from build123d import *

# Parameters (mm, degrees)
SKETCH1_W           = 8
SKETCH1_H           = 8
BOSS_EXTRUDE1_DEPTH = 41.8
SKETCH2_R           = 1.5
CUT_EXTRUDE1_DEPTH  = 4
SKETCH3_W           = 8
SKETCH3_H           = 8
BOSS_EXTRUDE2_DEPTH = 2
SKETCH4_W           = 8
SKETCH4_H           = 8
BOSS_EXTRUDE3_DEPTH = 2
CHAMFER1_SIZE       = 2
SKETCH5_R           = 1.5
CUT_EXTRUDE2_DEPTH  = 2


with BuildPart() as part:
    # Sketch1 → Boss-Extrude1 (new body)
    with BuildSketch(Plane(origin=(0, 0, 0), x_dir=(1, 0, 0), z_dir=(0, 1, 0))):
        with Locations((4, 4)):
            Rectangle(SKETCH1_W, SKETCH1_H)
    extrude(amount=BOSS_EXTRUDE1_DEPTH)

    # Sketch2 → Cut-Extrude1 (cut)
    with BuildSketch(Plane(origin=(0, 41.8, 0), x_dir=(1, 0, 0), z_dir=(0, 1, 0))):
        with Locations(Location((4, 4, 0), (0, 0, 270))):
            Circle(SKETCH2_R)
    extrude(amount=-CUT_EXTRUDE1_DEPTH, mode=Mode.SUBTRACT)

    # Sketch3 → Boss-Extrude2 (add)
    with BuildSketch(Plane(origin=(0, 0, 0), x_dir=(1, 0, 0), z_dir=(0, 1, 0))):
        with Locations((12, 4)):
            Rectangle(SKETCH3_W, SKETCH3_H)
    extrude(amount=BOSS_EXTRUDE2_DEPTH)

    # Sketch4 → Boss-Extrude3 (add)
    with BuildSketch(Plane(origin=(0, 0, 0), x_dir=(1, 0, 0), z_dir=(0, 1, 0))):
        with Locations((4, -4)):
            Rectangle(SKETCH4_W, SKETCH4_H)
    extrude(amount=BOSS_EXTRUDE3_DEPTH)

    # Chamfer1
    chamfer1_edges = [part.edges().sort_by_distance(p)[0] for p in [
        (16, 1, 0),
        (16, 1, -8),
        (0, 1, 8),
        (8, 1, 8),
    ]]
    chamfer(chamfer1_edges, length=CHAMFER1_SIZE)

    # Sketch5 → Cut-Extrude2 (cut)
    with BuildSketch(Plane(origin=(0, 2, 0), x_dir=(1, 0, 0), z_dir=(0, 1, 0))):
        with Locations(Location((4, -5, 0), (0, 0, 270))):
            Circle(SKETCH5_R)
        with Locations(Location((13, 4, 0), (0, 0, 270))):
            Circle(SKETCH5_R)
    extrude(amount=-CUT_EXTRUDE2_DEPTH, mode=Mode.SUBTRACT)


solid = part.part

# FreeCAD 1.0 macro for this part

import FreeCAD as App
import Part
import Sketcher

V = App.Vector


def edges_at(feature, points):
    """Names of the edges that pass closest to the given points."""
    edges = feature.Shape.Edges
    near = lambda p: min(range(len(edges)), key=lambda i: edges[i].distToShape(Part.Vertex(*p))[0])
    return sorted({f"Edge{near(p) + 1}" for p in points})


def add_polygon(sketch, points):
    """Adds a closed chain of lines whose ends are joined by coincident constraints."""
    first, n = sketch.GeometryCount, len(points)
    for a, b in zip(points, points[1:] + points[:1]):
        sketch.addGeometry(Part.LineSegment(App.Vector(*a, 0), App.Vector(*b, 0)), False)
    for i in range(n):
        sketch.addConstraint(Sketcher.Constraint("Coincident", first + i, 2, first + (i + 1) % n, 1))

doc = App.newDocument("Part")
body = doc.addObject("PartDesign::Body", "Body")

# Sketch on XZ plane
sketch1 = body.newObject("Sketcher::SketchObject", "Sketch")
sketch1.AttachmentSupport = (doc.getObject("XZ_Plane"), [""])
sketch1.MapMode = "FlatFace"
add_polygon(sketch1, [(0, -8), (0, 0), (8, 0), (8, -8)])  # lines 0-3
sketch1.addConstraint([
    Sketcher.Constraint("Vertical", 0),
    Sketcher.Constraint("Horizontal", 1),
    Sketcher.Constraint("Vertical", 2),
    Sketcher.Constraint("Horizontal", 3),
    Sketcher.Constraint("Coincident", 0, 2, -1, 1),
    Sketcher.Constraint("Equal", 3, 0),
    Sketcher.Constraint("DistanceX", 1, 1, 1, 2, 8.0),
])
pad1 = body.newObject("PartDesign::Pad", "Pad")
pad1.Profile = sketch1
pad1.Length = 41.8
pad1.Reversed = True

# Sketch on XZ plane
sketch2 = body.newObject("Sketcher::SketchObject", "Sketch001")
sketch2.AttachmentSupport = (doc.getObject("XZ_Plane"), [""])
sketch2.MapMode = "FlatFace"
sketch2.AttachmentOffset = App.Placement(V(0, 0, -41.8), App.Rotation())
sketch2.addGeometry(Part.Circle(V(4, -4, 0), V(0, 0, 1), 1.5), False)
sketch2.addConstraint([
    Sketcher.Constraint("Diameter", 0, 3.0),
    Sketcher.Constraint("DistanceX", -1, 1, 0, 3, 4.0),
    Sketcher.Constraint("DistanceY", 0, 3, -1, 1, 4.0),
])
pocket1 = body.newObject("PartDesign::Pocket", "Pocket")
pocket1.Profile = sketch2
pocket1.Length = 4
pocket1.Reversed = True

# Sketch on XZ plane
sketch3 = body.newObject("Sketcher::SketchObject", "Sketch002")
sketch3.AttachmentSupport = (doc.getObject("XZ_Plane"), [""])
sketch3.MapMode = "FlatFace"
add_polygon(sketch3, [(8, -8), (8, 0), (16, 0), (16, -8)])  # lines 0-3
sketch3.addConstraint([
    Sketcher.Constraint("Vertical", 0),
    Sketcher.Constraint("Horizontal", 1),
    Sketcher.Constraint("Vertical", 2),
    Sketcher.Constraint("Horizontal", 3),
    Sketcher.Constraint("PointOnObject", 0, 2, -1),
    Sketcher.Constraint("Equal", 3, 0),
    Sketcher.Constraint("DistanceX", 1, 1, 1, 2, 8.0),
    Sketcher.Constraint("DistanceX", -1, 1, 0, 2, 8.0),
])
pad2 = body.newObject("PartDesign::Pad", "Pad001")
pad2.Profile = sketch3
pad2.Length = 2
pad2.Reversed = True

# Sketch on XZ plane
sketch4 = body.newObject("Sketcher::SketchObject", "Sketch003")
sketch4.AttachmentSupport = (doc.getObject("XZ_Plane"), [""])
sketch4.MapMode = "FlatFace"
add_polygon(sketch4, [(0, 0), (0, 8), (8, 8), (8, 0)])  # lines 0-3
sketch4.addConstraint([
    Sketcher.Constraint("Vertical", 0),
    Sketcher.Constraint("Horizontal", 1),
    Sketcher.Constraint("Vertical", 2),
    Sketcher.Constraint("Horizontal", 3),
    Sketcher.Constraint("Coincident", 3, 2, -1, 1),
    Sketcher.Constraint("Equal", 3, 0),
    Sketcher.Constraint("DistanceX", 1, 1, 1, 2, 8.0),
])
pad3 = body.newObject("PartDesign::Pad", "Pad002")
pad3.Profile = sketch4
pad3.Length = 2
pad3.Reversed = True
doc.recompute()

chamfer = body.newObject("PartDesign::Chamfer", "Chamfer")
chamfer.Base = (pad3, edges_at(pad3, [
    (16, 1, 0),
    (16, 1, -8),
    (0, 1, 8),
    (8, 1, 8),
]))
chamfer.Size = 2

# Sketch on XZ plane
sketch5 = body.newObject("Sketcher::SketchObject", "Sketch004")
sketch5.AttachmentSupport = (doc.getObject("XZ_Plane"), [""])
sketch5.MapMode = "FlatFace"
sketch5.AttachmentOffset = App.Placement(V(0, 0, -2), App.Rotation())
sketch5.addGeometry([
    Part.Circle(V(4, 5, 0), V(0, 0, 1), 1.5),
    Part.Circle(V(13, -4, 0), V(0, 0, 1), 1.5),
], False)
sketch5.addConstraint([
    Sketcher.Constraint("Equal", 0, 1),
    Sketcher.Constraint("Diameter", 0, 3.0),
    Sketcher.Constraint("DistanceX", -1, 1, 0, 3, 4.0),
    Sketcher.Constraint("DistanceY", -1, 1, 0, 3, 5.0),
    Sketcher.Constraint("DistanceX", -1, 1, 1, 3, 13.0),
    Sketcher.Constraint("DistanceY", 1, 3, -1, 1, 4.0),
])
pocket2 = body.newObject("PartDesign::Pocket", "Pocket001")
pocket2.Profile = sketch5
pocket2.Length = 2
pocket2.Reversed = True

doc.recompute()
